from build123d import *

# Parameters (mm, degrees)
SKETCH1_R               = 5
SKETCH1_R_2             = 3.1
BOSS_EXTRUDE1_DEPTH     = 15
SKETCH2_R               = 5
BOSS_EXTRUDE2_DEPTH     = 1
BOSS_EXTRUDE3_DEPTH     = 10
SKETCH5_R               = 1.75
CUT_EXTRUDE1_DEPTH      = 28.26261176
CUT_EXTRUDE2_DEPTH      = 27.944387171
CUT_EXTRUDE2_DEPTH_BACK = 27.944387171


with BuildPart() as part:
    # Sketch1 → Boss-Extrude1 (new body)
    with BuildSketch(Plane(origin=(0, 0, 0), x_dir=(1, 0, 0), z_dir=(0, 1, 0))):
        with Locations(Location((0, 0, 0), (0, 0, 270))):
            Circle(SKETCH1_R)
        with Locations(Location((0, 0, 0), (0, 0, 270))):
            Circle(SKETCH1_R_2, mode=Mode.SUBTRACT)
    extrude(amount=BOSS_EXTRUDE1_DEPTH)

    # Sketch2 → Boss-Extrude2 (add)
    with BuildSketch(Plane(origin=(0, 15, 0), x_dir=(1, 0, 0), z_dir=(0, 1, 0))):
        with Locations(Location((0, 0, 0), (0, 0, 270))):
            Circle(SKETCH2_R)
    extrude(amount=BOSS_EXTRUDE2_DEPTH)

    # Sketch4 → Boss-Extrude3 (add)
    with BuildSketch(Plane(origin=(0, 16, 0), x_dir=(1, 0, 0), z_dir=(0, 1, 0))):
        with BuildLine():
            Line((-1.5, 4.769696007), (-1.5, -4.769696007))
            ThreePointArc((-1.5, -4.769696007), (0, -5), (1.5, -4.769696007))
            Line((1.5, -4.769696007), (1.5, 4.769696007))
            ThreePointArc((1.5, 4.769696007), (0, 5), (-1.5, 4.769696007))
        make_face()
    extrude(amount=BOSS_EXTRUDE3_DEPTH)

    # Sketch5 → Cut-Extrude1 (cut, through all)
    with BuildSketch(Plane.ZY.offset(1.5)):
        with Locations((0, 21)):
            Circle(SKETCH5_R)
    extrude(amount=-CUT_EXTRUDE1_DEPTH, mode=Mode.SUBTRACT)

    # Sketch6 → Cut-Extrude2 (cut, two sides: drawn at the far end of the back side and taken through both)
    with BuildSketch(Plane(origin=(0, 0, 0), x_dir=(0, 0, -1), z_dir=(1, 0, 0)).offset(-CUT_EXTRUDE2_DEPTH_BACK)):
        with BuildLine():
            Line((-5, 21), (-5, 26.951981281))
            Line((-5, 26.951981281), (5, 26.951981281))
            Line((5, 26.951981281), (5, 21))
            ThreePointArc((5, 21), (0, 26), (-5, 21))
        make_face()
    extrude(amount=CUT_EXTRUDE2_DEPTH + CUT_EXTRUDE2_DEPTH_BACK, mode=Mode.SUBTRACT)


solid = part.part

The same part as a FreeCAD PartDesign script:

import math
import FreeCAD as App
import Part
import Sketcher

doc = App.newDocument("Part")
body = doc.addObject("PartDesign::Body", "Body")

sketch1 = body.newObject("Sketcher::SketchObject", "Sketch")
sketch1.AttachmentSupport = (doc.getObject("XZ_Plane"), [""])
sketch1.MapMode = "FlatFace"
sketch1.addGeometry(Part.Circle(App.Vector(0, 0, 0), App.Vector(0, 0, 1), 5), False)
sketch1.addGeometry(Part.Circle(App.Vector(0, 0, 0), App.Vector(0, 0, 1), 3.1), False)
sketch1.addConstraint(Sketcher.Constraint("Coincident", 0, 3, -1, 1))
sketch1.addConstraint(Sketcher.Constraint("Coincident", 1, 3, -1, 1))
sketch1.addConstraint(Sketcher.Constraint("Diameter", 0, 10.0))
sketch1.addConstraint(Sketcher.Constraint("Diameter", 1, 6.2))
pad1 = body.newObject("PartDesign::Pad", "Pad")
pad1.Profile = sketch1
pad1.Length = 15
pad1.Reversed = True

sketch2 = body.newObject("Sketcher::SketchObject", "Sketch001")
sketch2.AttachmentSupport = (doc.getObject("XZ_Plane"), [""])
sketch2.MapMode = "FlatFace"
sketch2.AttachmentOffset = App.Placement(App.Vector(0, 0, -15), App.Rotation())
sketch2.addGeometry(Part.Circle(App.Vector(0, 0, 0), App.Vector(0, 0, 1), 5), False)
sketch2.addConstraint(Sketcher.Constraint("Coincident", 0, 3, -1, 1))
sketch2.addConstraint(Sketcher.Constraint("Diameter", 0, 10.0))
pad2 = body.newObject("PartDesign::Pad", "Pad001")
pad2.Profile = sketch2
pad2.Length = 1
pad2.Reversed = True

sketch3 = body.newObject("Sketcher::SketchObject", "Sketch002")
sketch3.AttachmentSupport = (doc.getObject("XZ_Plane"), [""])
sketch3.MapMode = "FlatFace"
sketch3.AttachmentOffset = App.Placement(App.Vector(0, 0, -16), App.Rotation())
sketch3.addGeometry(Part.LineSegment(App.Vector(-1.5, -4.8, 0), App.Vector(-1.5, 4.8, 0)), False)
sketch3.addGeometry(Part.ArcOfCircle(Part.Circle(App.Vector(0, 0, 0), App.Vector(0, 0, 1), 5), math.radians(73), math.radians(107)), False)
sketch3.addGeometry(Part.LineSegment(App.Vector(1.5, 4.8, 0), App.Vector(1.5, -4.8, 0)), False)
sketch3.addGeometry(Part.ArcOfCircle(Part.Circle(App.Vector(0, 0, 0), App.Vector(0, 0, 1), 5), math.radians(-107), math.radians(-73)), False)
sketch3.addConstraint(Sketcher.Constraint("Coincident", 0, 2, 1, 2))
sketch3.addConstraint(Sketcher.Constraint("Coincident", 1, 1, 2, 1))
sketch3.addConstraint(Sketcher.Constraint("Coincident", 2, 2, 3, 2))
sketch3.addConstraint(Sketcher.Constraint("Coincident", 3, 1, 0, 1))
sketch3.addConstraint(Sketcher.Constraint("Vertical", 0))
sketch3.addConstraint(Sketcher.Constraint("Vertical", 2))
sketch3.addConstraint(Sketcher.Constraint("Coincident", 1, 3, -1, 1))
sketch3.addConstraint(Sketcher.Constraint("Coincident", 3, 3, -1, 1))
sketch3.addConstraint(Sketcher.Constraint("Equal", 1, 3))
sketch3.addConstraint(Sketcher.Constraint("Horizontal", 0, 2, 1, 1))
sketch3.addConstraint(Sketcher.Constraint("Radius", 1, 5.0))
sketch3.addConstraint(Sketcher.Constraint("DistanceX", 0, 2, 1, 1, 3.0))
pad3 = body.newObject("PartDesign::Pad", "Pad002")
pad3.Profile = sketch3
pad3.Length = 10
pad3.Reversed = True

sketch4 = body.newObject("Sketcher::SketchObject", "Sketch003")
sketch4.AttachmentSupport = (doc.getObject("YZ_Plane"), [""])
sketch4.MapMode = "FlatFace"
sketch4.AttachmentOffset = App.Placement(App.Vector(0, 0, -1.5), App.Rotation())
sketch4.addGeometry(Part.Circle(App.Vector(21, 0, 0), App.Vector(0, 0, 1), 1.8), False)
sketch4.addConstraint(Sketcher.Constraint("PointOnObject", 0, 3, -1))
sketch4.addConstraint(Sketcher.Constraint("Diameter", 0, 3.5))
sketch4.addConstraint(Sketcher.Constraint("DistanceX", -1, 1, 0, 3, 21.0))
pocket1 = body.newObject("PartDesign::Pocket", "Pocket")
pocket1.Profile = sketch4
pocket1.Type = "ThroughAll"
pocket1.Reversed = True

sketch5 = body.newObject("Sketcher::SketchObject", "Sketch004")
sketch5.AttachmentSupport = (doc.getObject("YZ_Plane"), [""])
sketch5.MapMode = "FlatFace"
sketch5.addGeometry(Part.LineSegment(App.Vector(27, 5, 0), App.Vector(21, 5, 0)), False)
sketch5.addGeometry(Part.ArcOfCircle(Part.Circle(App.Vector(21, 0, 0), App.Vector(0, 0, 1), 5), math.radians(-90), math.radians(90)), False)
sketch5.addGeometry(Part.LineSegment(App.Vector(21, -5, 0), App.Vector(27, -5, 0)), False)
sketch5.addGeometry(Part.LineSegment(App.Vector(27, -5, 0), App.Vector(27, 5, 0)), False)
sketch5.addConstraint(Sketcher.Constraint("Tangent", 0, 2, 1, 2))
sketch5.addConstraint(Sketcher.Constraint("Tangent", 1, 1, 2, 1))
sketch5.addConstraint(Sketcher.Constraint("Coincident", 2, 2, 3, 1))
sketch5.addConstraint(Sketcher.Constraint("Coincident", 3, 2, 0, 1))
sketch5.addConstraint(Sketcher.Constraint("Horizontal", 0))
sketch5.addConstraint(Sketcher.Constraint("Horizontal", 2))
sketch5.addConstraint(Sketcher.Constraint("Vertical", 3))
sketch5.addConstraint(Sketcher.Constraint("PointOnObject", 1, 3, -1))
sketch5.addConstraint(Sketcher.Constraint("Radius", 1, 5.0))
sketch5.addConstraint(Sketcher.Constraint("DistanceX", -1, 1, 1, 3, 21.0))
sketch5.addConstraint(Sketcher.Constraint("DistanceX", 0, 2, 0, 1, 5.951981))
pocket2 = body.newObject("PartDesign::Pocket", "Pocket001")
pocket2.Profile = sketch5
pocket2.Type = "ThroughAll"
pocket2.Midplane = True

doc.recompute()
